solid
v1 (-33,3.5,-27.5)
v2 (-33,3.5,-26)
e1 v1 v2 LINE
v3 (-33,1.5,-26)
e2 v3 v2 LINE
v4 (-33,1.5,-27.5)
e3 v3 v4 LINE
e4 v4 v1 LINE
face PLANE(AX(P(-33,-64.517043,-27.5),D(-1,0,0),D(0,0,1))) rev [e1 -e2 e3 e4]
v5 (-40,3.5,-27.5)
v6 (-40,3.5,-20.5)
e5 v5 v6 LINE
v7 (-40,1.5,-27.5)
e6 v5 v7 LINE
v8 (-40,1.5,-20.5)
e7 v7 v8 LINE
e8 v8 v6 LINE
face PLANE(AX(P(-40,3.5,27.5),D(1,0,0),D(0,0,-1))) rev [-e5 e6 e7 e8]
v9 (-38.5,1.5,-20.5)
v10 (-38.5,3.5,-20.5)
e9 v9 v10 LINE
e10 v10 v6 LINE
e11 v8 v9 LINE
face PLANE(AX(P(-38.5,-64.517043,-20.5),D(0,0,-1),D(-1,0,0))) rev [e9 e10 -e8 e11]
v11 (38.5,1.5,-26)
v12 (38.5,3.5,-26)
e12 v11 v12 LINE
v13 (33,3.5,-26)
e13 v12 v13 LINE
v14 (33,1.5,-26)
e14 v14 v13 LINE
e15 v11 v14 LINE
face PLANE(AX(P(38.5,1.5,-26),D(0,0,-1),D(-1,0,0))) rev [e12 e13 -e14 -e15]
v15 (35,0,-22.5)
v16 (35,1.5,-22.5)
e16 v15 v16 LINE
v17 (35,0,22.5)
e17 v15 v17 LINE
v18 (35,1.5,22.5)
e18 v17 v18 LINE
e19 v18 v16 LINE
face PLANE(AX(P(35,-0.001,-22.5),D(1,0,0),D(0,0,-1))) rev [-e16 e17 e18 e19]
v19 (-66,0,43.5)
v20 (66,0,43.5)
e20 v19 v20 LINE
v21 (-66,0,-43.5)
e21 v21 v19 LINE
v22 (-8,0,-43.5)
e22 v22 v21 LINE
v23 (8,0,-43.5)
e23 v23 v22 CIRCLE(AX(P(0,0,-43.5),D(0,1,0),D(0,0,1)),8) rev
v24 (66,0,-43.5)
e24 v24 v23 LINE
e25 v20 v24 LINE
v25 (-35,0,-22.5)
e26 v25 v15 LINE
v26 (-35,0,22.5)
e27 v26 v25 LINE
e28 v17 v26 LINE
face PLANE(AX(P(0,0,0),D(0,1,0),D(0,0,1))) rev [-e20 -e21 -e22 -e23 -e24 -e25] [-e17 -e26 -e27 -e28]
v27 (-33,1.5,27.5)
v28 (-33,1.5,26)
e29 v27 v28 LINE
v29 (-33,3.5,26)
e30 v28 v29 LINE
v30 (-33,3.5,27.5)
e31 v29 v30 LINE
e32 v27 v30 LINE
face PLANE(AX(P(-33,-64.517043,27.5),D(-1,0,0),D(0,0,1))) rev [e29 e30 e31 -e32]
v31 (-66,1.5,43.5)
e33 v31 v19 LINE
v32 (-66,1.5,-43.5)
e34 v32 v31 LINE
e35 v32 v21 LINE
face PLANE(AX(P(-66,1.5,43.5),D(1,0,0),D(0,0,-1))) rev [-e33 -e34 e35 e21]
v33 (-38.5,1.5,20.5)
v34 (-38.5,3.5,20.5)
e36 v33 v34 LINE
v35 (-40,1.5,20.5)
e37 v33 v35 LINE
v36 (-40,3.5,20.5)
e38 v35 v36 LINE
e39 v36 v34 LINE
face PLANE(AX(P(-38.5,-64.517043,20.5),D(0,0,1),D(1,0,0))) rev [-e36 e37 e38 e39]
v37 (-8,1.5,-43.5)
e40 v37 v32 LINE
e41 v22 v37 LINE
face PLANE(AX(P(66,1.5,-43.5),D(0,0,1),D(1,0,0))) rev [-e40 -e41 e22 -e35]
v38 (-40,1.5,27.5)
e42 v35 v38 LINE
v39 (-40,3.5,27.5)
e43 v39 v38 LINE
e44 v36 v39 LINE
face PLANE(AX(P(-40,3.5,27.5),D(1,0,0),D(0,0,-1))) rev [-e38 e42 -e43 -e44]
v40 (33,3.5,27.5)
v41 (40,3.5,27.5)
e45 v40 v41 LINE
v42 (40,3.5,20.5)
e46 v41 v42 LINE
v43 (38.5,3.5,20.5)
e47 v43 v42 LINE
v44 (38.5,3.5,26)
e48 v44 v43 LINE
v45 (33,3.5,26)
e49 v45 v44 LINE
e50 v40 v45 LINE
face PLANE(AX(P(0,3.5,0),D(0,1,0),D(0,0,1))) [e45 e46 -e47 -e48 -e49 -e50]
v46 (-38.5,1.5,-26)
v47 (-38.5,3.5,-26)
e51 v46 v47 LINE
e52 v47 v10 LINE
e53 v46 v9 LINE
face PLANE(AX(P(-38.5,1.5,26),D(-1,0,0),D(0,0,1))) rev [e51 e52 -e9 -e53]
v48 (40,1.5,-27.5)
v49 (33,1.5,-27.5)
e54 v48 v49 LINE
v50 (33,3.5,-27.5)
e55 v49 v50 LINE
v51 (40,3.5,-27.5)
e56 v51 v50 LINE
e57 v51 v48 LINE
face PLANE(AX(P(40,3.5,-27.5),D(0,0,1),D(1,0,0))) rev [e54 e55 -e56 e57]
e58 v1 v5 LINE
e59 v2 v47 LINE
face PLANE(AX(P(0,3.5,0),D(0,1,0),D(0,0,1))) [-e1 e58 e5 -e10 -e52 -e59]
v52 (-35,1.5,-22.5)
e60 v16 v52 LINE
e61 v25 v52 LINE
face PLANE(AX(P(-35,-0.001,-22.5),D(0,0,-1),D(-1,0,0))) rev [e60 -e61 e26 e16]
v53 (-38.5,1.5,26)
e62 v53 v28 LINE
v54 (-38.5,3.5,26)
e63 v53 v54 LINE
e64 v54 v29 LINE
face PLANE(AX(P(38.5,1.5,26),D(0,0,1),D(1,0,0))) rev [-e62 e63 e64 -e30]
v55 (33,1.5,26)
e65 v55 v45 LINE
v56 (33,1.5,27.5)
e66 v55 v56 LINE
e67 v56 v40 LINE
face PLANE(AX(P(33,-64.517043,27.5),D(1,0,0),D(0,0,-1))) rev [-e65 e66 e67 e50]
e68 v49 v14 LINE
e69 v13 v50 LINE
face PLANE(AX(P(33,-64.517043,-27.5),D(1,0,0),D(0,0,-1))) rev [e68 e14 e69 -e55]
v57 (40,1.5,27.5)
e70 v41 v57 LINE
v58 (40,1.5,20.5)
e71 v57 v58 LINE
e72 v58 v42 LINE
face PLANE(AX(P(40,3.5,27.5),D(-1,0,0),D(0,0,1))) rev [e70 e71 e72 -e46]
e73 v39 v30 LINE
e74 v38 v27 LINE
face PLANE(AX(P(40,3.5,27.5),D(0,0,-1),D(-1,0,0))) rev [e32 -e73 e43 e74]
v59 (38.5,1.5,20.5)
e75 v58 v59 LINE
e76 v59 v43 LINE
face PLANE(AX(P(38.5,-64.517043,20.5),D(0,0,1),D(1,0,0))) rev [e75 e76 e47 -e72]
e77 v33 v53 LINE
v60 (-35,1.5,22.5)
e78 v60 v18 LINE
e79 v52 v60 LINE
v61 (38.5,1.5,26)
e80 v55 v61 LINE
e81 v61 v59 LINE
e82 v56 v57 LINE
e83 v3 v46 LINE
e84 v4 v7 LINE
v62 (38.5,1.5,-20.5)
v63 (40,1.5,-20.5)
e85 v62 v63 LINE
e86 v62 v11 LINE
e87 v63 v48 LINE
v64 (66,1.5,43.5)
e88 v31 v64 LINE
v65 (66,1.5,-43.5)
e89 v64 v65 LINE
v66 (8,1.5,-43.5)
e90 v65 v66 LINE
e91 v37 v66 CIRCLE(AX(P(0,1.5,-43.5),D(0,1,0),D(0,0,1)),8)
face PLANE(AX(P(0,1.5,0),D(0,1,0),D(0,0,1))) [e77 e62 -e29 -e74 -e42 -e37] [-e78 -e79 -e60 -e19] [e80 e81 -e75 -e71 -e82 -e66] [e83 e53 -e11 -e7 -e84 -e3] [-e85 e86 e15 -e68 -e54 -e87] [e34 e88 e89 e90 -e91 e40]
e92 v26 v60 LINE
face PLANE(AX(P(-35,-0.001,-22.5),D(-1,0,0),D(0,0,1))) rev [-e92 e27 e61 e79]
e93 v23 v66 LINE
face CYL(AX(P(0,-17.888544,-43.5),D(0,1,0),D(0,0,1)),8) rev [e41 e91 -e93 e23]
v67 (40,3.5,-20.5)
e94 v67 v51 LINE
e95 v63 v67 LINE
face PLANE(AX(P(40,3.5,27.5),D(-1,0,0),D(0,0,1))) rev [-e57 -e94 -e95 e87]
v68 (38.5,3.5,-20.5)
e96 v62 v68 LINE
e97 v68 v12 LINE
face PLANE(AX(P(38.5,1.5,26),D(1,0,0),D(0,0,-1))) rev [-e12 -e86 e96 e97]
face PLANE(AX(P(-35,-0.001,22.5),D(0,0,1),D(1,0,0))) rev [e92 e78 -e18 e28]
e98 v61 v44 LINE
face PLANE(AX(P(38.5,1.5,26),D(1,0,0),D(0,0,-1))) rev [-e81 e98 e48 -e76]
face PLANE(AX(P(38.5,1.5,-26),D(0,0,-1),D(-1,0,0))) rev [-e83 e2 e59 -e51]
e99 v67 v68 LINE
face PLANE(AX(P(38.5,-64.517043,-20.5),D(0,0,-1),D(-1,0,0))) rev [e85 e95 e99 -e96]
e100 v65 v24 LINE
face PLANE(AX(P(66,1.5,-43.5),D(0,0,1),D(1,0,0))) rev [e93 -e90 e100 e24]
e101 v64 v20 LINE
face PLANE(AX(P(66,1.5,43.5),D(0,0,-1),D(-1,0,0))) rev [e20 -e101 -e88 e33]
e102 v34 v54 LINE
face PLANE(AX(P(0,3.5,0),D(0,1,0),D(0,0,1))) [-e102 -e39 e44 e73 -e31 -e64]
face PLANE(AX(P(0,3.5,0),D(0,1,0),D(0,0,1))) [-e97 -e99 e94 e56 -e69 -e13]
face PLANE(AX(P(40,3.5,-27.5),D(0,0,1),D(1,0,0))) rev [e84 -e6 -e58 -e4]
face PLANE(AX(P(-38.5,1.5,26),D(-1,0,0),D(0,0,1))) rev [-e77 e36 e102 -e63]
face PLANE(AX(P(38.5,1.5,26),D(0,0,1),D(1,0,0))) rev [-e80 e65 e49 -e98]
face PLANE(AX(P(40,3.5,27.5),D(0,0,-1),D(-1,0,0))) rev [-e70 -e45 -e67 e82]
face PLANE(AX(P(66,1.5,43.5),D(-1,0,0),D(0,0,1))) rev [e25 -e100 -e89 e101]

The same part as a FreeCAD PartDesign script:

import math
import FreeCAD as App
import Part
import Sketcher
from FreeCAD import Vector
Q = App.Units.Quantity


def add_polygon(sketch, points):
    """Adds a closed chain of lines whose ends are joined by coincident constraints."""
    first, n = sketch.GeometryCount, len(points)
    for a, b in zip(points, points[1:] + points[:1]):
        sketch.addGeometry(Part.LineSegment(App.Vector(*a, 0), App.Vector(*b, 0)), False)
    for i in range(n):
        sketch.addConstraint(Sketcher.Constraint("Coincident", first + i, 2, first + (i + 1) % n, 1))

doc = App.newDocument("Part")
body = doc.addObject("PartDesign::Body", "Body")

# Sketch on XZ plane
sketch1 = body.newObject("Sketcher::SketchObject", "Sketch")
sketch1.AttachmentSupport = (doc.getObject("XZ_Plane"), [""])
sketch1.MapMode = "FlatFace"
add_polygon(sketch1, [(-66, -44), (-66, 44), (66, 44), (66, -44)])  # lines 0-3
sketch1.addConstraint([
    Sketcher.Constraint("Vertical", 0),
    Sketcher.Constraint("Horizontal", 1),
    Sketcher.Constraint("Vertical", 2),
    Sketcher.Constraint("Horizontal", 3),
    Sketcher.Constraint("Symmetric", 0, 2, 2, 2, -1, 1),
    Sketcher.Constraint("DistanceX", 1, 1, 1, 2, Q("132 mm")),
    Sketcher.Constraint("DistanceY", 0, 1, 0, 2, Q("87 mm")),
])
pad1 = body.newObject("PartDesign::Pad", "Pad")
pad1.Profile = sketch1
pad1.Length = 1.5
pad1.Reversed = True

# Sketch on XZ plane
sketch2 = body.newObject("Sketcher::SketchObject", "Sketch001")
sketch2.AttachmentSupport = (doc.getObject("XZ_Plane"), [""])
sketch2.MapMode = "FlatFace"
sketch2.AttachmentOffset = App.Placement(Vector(0, 0, -1.5), App.Rotation())
add_polygon(sketch2, [(-40, -28), (-40, 28), (40, 28), (40, -28)])  # lines 0-3
sketch2.addConstraint([
    Sketcher.Constraint("Vertical", 0),
    Sketcher.Constraint("Horizontal", 1),
    Sketcher.Constraint("Vertical", 2),
    Sketcher.Constraint("Horizontal", 3),
    Sketcher.Constraint("Symmetric", 0, 2, 2, 2, -1, 1),
    Sketcher.Constraint("DistanceX", 1, 1, 1, 2, Q("80 mm")),
    Sketcher.Constraint("DistanceY", 0, 1, 0, 2, Q("55 mm")),
])
pad2 = body.newObject("PartDesign::Pad", "Pad001")
pad2.Profile = sketch2
pad2.Length = 2
pad2.Reversed = True

# Sketch on XZ plane
sketch3 = body.newObject("Sketcher::SketchObject", "Sketch002")
sketch3.AttachmentSupport = (doc.getObject("XZ_Plane"), [""])
sketch3.MapMode = "FlatFace"
sketch3.AttachmentOffset = App.Placement(Vector(0, 0, -3.5), App.Rotation())
add_polygon(sketch3, [(-38, -26), (-38, 26), (38, 26), (38, -26)])  # lines 0-3
sketch3.addConstraint([
    Sketcher.Constraint("Vertical", 0),
    Sketcher.Constraint("Horizontal", 1),
    Sketcher.Constraint("Vertical", 2),
    Sketcher.Constraint("Horizontal", 3),
    Sketcher.Constraint("Symmetric", 0, 2, 2, 2, -1, 1),
    Sketcher.Constraint("DistanceX", 1, 1, 1, 2, Q("77 mm")),
    Sketcher.Constraint("DistanceY", 0, 1, 0, 2, Q("52 mm")),
])
pocket1 = body.newObject("PartDesign::Pocket", "Pocket")
pocket1.Profile = sketch3
pocket1.Length = 2
pocket1.Reversed = True

# Sketch on XZ plane
sketch4 = body.newObject("Sketcher::SketchObject", "Sketch003")
sketch4.AttachmentSupport = (doc.getObject("XZ_Plane"), [""])
sketch4.MapMode = "FlatFace"
sketch4.AttachmentOffset = App.Placement(Vector(0, 0, -1.5), App.Rotation())
add_polygon(sketch4, [(-35, -22), (-35, 22), (35, 22), (35, -22)])  # lines 0-3
sketch4.addConstraint([
    Sketcher.Constraint("Vertical", 0),
    Sketcher.Constraint("Horizontal", 1),
    Sketcher.Constraint("Vertical", 2),
    Sketcher.Constraint("Horizontal", 3),
    Sketcher.Constraint("Symmetric", 0, 2, 2, 2, -1, 1),
    Sketcher.Constraint("DistanceX", 1, 1, 1, 2, Q("70 mm")),
    Sketcher.Constraint("DistanceY", 0, 1, 0, 2, Q("45 mm")),
])
pocket2 = body.newObject("PartDesign::Pocket", "Pocket001")
pocket2.Profile = sketch4
pocket2.Type = "UpToFirst"
pocket2.Reversed = True

# Sketch on XZ plane
sketch5 = body.newObject("Sketcher::SketchObject", "Sketch004")
sketch5.AttachmentSupport = (doc.getObject("XZ_Plane"), [""])
sketch5.MapMode = "FlatFace"
sketch5.AttachmentOffset = App.Placement(Vector(0, 0, -3.5), App.Rotation())
add_polygon(sketch5, [(-40, -20.5), (-40, 20.5), (-38.5, 20.5), (-38.5, -20.5)])  # lines 0-3
add_polygon(sketch5, [(38.5, -20.5), (38.5, 20.5), (40, 20.5), (40, -20.5)])  # lines 4-7
add_polygon(sketch5, [(-33, -27.5), (-33, -26), (33, -26), (33, -27.5)])  # lines 8-11
add_polygon(sketch5, [(-33, 26), (-33, 27.5), (33, 27.5), (33, 26)])  # lines 12-15
sketch5.addConstraint([
    Sketcher.Constraint("Vertical", 0),
    Sketcher.Constraint("Horizontal", 1),
    Sketcher.Constraint("Vertical", 2),
    Sketcher.Constraint("Horizontal", 3),
    Sketcher.Constraint("Vertical", 4),
    Sketcher.Constraint("Horizontal", 5),
    Sketcher.Constraint("Vertical", 6),
    Sketcher.Constraint("Horizontal", 7),
    Sketcher.Constraint("Vertical", 8),
    Sketcher.Constraint("Horizontal", 9),
    Sketcher.Constraint("Vertical", 10),
    Sketcher.Constraint("Horizontal", 11),
    Sketcher.Constraint("Vertical", 12),
    Sketcher.Constraint("Horizontal", 13),
    Sketcher.Constraint("Vertical", 14),
    Sketcher.Constraint("Horizontal", 15),
    Sketcher.Constraint("Symmetric", 2, 2, 4, 2, -1, 1),
    Sketcher.Constraint("Symmetric", 0, 2, 6, 2, -1, 1),
    Sketcher.Constraint("Symmetric", 10, 2, 12, 2, -1, 1),
    Sketcher.Constraint("Symmetric", 8, 2, 14, 2, -1, 1),
    Sketcher.Constraint("Horizontal", 1, 2, 4, 2),
    Sketcher.Constraint("Vertical", 11, 2, 12, 2),
    Sketcher.Constraint("Equal", 7, 8),
    Sketcher.Constraint("DistanceX", 9, 1, 9, 2, Q("66 mm")),
    Sketcher.Constraint("DistanceY", 0, 1, 0, 2, Q("41 mm")),
    Sketcher.Constraint("DistanceX", 1, 1, 1, 2, Q("1.5 mm")),
    Sketcher.Constraint("DistanceX", 0, 2, -1, 1, Q("40 mm")),
    Sketcher.Constraint("DistanceY", 8, 2, -1, 1, Q("26 mm")),
])
pocket3 = body.newObject("PartDesign::Pocket", "Pocket002")
pocket3.Profile = sketch5
pocket3.Length = 2
pocket3.Reversed = True

# Sketch on XZ plane
sketch6 = body.newObject("Sketcher::SketchObject", "Sketch005")
sketch6.AttachmentSupport = (doc.getObject("XZ_Plane"), [""])
sketch6.MapMode = "FlatFace"
sketch6.AttachmentOffset = App.Placement(Vector(0, 0, -1.5), App.Rotation())
sketch6.addGeometry([
    Part.LineSegment(Vector(8, -44, 0), Vector(-8, -44, 0)),
    Part.ArcOfCircle(Part.Circle(Vector(0, -44, 0), Vector(0, 0, 1), 8), math.radians(0), math.radians(180)),
], False)
sketch6.addConstraint([
    Sketcher.Constraint("Coincident", 0, 1, 1, 1),
    Sketcher.Constraint("Coincident", 1, 2, 0, 2),
    Sketcher.Constraint("Horizontal", 0),
    Sketcher.Constraint("PointOnObject", 1, 3, -2),
    Sketcher.Constraint("Horizontal", 1, 3, 0, 1),
    Sketcher.Constraint("Radius", 1, Q("8 mm")),
    Sketcher.Constraint("DistanceY", 1, 3, -1, 1, Q("43.5 mm")),
])
pocket4 = body.newObject("PartDesign::Pocket", "Pocket003")
pocket4.Profile = sketch6
pocket4.Length = 1.5
pocket4.Reversed = True

doc.recompute()
